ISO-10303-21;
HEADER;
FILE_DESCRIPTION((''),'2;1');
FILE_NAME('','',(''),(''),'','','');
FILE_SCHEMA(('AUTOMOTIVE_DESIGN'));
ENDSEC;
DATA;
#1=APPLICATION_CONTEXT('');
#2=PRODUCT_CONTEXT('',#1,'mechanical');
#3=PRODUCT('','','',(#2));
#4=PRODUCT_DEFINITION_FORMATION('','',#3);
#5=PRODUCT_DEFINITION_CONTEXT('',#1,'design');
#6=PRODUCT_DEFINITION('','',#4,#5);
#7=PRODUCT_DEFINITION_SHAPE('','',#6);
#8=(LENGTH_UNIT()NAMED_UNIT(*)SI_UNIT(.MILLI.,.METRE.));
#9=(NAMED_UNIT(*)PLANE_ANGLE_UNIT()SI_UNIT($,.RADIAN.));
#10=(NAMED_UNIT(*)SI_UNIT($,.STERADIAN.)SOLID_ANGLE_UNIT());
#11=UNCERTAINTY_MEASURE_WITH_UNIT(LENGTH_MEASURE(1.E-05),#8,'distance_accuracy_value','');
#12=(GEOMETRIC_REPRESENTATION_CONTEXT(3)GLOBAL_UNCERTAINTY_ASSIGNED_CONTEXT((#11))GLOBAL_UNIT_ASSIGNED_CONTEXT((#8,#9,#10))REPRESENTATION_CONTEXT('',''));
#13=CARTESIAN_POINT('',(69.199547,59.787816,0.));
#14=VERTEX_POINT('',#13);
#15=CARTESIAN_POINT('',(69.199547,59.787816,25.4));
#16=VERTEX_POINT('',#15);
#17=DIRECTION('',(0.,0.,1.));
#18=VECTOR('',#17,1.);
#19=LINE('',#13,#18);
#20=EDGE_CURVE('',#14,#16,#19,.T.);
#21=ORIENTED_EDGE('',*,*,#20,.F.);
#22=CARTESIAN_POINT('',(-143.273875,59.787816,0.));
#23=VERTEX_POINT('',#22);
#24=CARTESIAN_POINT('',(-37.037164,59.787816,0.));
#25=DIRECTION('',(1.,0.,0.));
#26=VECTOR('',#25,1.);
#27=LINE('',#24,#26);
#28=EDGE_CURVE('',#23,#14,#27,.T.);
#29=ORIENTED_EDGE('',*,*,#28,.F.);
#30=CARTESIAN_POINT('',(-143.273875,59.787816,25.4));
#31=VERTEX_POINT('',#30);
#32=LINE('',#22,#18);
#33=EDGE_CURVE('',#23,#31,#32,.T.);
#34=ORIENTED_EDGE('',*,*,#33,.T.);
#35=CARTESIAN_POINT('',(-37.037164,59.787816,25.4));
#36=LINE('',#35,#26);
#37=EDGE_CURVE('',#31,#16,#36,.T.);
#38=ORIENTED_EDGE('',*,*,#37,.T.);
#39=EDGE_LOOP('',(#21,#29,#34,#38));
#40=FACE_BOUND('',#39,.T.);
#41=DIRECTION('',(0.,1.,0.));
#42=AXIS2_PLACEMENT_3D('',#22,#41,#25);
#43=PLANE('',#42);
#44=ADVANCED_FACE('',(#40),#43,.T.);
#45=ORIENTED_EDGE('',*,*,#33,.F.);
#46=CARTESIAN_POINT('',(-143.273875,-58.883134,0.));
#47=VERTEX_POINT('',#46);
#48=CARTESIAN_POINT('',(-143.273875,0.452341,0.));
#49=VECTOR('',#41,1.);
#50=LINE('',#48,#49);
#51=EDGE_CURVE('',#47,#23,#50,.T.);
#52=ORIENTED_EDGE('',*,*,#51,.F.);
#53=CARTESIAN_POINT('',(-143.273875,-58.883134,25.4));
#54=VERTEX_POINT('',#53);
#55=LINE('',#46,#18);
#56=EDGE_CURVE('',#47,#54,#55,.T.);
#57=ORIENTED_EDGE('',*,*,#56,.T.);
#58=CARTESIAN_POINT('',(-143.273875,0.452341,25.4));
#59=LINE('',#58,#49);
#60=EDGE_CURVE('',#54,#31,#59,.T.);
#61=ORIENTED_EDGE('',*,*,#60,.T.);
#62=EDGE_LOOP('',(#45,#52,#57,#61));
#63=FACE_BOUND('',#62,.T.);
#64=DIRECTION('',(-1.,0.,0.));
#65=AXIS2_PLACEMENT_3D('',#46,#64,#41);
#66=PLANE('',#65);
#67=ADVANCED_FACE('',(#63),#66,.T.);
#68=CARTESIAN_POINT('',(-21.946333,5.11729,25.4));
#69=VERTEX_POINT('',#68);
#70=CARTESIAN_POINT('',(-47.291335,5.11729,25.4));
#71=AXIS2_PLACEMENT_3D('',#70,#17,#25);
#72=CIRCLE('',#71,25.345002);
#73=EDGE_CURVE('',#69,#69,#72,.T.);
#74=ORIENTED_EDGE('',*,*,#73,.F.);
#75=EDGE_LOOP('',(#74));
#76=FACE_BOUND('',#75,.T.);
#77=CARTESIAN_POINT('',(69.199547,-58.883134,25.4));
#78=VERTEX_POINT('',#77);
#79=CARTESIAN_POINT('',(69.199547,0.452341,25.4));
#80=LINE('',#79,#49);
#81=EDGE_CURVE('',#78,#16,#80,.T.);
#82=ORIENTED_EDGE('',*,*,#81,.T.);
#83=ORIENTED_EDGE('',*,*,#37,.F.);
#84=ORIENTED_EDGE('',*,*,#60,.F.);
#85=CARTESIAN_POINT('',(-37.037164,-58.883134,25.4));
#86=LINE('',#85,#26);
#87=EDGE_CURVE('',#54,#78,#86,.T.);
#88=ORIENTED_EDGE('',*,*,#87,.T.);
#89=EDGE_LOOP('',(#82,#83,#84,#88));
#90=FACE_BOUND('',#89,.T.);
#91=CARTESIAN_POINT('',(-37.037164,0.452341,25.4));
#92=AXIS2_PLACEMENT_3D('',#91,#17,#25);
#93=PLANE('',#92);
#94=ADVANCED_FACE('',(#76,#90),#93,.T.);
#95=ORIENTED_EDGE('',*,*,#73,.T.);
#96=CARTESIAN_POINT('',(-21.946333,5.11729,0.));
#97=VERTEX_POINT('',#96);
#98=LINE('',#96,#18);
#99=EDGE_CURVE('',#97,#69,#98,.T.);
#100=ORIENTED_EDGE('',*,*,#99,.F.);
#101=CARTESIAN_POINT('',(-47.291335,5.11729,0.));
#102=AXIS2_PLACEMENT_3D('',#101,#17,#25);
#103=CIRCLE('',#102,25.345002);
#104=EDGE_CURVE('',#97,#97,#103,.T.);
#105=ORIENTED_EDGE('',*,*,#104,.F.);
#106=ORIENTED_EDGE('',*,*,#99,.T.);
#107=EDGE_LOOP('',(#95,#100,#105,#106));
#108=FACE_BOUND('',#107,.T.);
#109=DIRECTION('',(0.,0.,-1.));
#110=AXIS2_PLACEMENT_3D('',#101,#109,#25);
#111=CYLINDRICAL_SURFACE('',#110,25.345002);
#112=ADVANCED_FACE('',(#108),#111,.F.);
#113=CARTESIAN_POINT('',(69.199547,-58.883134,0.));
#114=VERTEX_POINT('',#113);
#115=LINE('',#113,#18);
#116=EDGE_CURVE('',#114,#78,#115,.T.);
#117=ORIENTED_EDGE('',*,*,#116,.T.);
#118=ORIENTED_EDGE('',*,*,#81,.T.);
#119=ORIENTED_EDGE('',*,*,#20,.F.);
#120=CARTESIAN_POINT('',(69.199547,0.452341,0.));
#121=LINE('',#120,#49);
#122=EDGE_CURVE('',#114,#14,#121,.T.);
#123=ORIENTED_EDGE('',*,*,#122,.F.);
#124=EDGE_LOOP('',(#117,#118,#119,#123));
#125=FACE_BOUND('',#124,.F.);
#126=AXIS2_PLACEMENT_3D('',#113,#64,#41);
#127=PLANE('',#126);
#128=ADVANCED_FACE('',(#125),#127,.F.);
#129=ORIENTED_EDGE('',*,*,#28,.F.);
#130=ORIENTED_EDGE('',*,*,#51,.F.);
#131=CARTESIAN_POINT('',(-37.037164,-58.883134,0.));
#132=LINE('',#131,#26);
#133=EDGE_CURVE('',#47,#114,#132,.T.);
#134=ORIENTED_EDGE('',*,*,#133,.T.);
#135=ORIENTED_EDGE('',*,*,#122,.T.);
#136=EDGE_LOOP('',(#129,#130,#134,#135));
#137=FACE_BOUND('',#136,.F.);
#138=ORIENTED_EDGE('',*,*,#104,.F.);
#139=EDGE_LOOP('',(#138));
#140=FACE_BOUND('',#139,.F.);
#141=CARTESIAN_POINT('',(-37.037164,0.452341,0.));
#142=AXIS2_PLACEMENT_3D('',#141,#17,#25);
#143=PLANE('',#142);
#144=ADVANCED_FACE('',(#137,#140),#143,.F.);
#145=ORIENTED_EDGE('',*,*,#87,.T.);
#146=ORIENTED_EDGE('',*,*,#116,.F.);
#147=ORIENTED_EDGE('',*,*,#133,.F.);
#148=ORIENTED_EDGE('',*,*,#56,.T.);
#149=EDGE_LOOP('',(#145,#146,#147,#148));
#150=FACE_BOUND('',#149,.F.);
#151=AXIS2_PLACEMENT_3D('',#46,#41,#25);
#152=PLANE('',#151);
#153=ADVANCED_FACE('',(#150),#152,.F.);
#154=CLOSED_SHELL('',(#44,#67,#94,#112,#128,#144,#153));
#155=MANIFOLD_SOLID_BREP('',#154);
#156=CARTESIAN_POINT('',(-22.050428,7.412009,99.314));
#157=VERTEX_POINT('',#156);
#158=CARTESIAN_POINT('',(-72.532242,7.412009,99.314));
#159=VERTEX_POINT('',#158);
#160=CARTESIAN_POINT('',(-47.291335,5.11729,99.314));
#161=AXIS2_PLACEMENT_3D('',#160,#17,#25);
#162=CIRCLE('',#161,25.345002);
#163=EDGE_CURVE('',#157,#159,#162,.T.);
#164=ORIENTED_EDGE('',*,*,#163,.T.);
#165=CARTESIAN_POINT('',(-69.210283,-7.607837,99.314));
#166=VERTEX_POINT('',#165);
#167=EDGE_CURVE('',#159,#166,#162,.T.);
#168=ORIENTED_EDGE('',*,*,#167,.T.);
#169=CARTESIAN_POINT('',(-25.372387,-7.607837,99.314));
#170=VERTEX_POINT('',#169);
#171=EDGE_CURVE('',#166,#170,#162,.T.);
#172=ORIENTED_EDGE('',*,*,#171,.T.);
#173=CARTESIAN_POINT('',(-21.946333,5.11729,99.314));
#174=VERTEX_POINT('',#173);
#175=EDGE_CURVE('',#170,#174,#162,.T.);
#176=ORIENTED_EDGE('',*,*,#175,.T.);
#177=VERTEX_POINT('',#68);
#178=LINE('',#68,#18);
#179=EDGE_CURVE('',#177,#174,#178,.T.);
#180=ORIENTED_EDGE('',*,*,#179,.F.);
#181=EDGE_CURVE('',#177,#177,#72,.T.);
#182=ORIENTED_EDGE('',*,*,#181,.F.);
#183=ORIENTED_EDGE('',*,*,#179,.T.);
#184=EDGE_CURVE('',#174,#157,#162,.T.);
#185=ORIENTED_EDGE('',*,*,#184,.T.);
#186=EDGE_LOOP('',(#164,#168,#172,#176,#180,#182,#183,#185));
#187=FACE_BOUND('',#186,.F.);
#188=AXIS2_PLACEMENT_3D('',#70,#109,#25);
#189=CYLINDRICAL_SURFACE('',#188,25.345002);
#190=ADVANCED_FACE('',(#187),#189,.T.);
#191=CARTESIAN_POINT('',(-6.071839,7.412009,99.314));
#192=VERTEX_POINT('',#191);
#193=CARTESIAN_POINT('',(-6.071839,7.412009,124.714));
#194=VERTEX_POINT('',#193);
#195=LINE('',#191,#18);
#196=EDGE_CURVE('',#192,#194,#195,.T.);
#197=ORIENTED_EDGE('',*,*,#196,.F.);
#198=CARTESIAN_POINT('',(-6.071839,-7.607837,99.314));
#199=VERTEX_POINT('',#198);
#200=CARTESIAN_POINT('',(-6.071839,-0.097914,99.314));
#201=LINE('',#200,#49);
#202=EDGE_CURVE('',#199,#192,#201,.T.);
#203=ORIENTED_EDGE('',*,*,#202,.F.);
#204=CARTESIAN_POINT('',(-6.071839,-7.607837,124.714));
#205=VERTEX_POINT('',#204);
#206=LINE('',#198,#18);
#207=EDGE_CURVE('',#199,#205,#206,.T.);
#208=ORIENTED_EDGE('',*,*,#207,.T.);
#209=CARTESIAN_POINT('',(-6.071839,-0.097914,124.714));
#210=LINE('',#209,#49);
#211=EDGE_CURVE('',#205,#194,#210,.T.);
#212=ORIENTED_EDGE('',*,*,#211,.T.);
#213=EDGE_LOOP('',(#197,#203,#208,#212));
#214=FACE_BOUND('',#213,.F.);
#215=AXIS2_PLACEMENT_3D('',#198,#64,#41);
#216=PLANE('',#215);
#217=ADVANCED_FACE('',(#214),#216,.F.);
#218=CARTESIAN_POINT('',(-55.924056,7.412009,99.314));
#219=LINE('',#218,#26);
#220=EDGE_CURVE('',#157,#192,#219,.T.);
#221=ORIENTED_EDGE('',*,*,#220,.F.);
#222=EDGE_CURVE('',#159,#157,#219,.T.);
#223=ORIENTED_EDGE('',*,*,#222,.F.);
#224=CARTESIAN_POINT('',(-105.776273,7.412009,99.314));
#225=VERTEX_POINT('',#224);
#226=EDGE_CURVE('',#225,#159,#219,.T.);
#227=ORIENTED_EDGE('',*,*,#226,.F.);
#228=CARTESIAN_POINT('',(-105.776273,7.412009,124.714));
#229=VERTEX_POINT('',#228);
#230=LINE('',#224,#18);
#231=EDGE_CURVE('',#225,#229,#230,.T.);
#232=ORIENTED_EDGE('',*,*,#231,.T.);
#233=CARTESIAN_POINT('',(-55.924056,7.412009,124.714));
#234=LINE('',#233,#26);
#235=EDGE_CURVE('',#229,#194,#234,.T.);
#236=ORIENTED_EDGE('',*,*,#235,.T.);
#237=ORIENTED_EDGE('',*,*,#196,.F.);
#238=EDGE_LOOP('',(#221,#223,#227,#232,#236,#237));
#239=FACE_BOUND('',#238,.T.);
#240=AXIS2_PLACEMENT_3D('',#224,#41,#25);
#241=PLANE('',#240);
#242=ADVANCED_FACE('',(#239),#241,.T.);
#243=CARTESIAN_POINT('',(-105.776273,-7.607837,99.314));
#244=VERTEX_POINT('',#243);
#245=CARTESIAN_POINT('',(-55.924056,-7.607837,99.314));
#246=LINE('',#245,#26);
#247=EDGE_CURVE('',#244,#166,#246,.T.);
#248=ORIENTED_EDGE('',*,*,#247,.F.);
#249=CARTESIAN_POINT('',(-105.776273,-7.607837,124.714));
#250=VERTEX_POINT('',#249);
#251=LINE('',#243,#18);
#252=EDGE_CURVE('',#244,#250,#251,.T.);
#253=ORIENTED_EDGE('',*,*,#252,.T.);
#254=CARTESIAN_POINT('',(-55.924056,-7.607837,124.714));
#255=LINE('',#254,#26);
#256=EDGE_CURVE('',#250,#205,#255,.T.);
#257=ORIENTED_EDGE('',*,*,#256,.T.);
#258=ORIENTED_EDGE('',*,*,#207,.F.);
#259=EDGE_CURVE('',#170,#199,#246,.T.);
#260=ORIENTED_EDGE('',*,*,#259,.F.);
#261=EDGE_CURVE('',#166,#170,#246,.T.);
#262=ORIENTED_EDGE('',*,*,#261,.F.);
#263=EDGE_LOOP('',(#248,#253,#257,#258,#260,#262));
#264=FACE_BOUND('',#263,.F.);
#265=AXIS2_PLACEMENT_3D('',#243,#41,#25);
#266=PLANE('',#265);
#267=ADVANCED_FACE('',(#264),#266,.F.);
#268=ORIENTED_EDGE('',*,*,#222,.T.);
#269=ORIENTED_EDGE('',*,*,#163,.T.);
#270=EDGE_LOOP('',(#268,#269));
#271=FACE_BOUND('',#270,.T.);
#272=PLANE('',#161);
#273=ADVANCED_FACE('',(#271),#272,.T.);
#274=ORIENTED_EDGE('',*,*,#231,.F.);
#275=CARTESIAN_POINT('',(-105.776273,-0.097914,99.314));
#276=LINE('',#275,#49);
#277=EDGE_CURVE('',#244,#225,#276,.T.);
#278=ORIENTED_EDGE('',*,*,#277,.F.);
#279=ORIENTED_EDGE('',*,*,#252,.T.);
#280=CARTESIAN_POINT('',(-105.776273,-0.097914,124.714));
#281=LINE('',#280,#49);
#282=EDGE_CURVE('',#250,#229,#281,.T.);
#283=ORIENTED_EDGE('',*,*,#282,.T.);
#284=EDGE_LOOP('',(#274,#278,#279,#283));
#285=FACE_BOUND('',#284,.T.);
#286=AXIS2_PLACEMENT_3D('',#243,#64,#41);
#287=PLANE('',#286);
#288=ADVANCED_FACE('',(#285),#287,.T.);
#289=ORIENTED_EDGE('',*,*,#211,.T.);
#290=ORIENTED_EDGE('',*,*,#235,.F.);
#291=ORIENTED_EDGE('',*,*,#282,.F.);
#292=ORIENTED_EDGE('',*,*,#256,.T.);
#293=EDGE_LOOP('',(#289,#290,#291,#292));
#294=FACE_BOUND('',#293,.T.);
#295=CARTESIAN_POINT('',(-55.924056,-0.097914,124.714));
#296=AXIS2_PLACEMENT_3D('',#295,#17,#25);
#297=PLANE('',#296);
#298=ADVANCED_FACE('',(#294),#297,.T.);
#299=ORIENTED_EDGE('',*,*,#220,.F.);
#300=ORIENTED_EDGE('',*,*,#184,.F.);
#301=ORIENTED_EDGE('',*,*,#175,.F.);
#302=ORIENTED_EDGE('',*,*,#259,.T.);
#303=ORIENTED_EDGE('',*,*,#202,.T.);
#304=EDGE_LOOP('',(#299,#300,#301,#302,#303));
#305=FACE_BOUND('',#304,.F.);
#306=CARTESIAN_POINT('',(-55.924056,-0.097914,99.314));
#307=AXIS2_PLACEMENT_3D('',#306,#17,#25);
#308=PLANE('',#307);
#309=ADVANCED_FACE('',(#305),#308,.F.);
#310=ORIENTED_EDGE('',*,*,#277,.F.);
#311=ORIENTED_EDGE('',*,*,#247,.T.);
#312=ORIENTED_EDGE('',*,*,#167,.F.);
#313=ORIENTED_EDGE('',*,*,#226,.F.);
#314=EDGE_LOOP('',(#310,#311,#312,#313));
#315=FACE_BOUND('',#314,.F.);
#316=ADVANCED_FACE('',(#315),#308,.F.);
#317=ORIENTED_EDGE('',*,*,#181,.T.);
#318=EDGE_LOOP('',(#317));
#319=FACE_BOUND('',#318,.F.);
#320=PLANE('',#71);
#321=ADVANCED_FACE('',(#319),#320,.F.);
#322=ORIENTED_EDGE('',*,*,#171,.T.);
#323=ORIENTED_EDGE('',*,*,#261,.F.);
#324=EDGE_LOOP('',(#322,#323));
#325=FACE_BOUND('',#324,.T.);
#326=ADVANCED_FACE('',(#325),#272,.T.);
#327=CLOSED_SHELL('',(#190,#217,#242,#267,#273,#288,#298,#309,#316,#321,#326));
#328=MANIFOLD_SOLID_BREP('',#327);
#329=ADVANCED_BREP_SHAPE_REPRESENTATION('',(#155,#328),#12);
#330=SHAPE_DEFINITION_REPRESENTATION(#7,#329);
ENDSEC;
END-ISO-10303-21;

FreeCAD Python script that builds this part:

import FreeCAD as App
import Part
import Sketcher
from FreeCAD import Vector
Q = App.Units.Quantity

doc = App.newDocument("Part")
body = doc.addObject("PartDesign::Body", "Body")

sketch1 = body.newObject("Sketcher::SketchObject", "Sketch")
sketch1.AttachmentSupport = (doc.getObject("XY_Plane"), [""])
sketch1.MapMode = "FlatFace"
sketch1.addGeometry(Part.LineSegment(Vector(-143.273875, 59.787816, 0), Vector(-143.273875, -58.883134, 0)), False)
sketch1.addGeometry(Part.LineSegment(Vector(-143.273875, -58.883134, 0), Vector(69.199547, -58.883134, 0)), False)
sketch1.addGeometry(Part.LineSegment(Vector(69.199547, -58.883134, 0), Vector(69.199547, 59.787816, 0)), False)
sketch1.addGeometry(Part.LineSegment(Vector(69.199547, 59.787816, 0), Vector(-143.273875, 59.787816, 0)), False)
sketch1.addGeometry(Part.Circle(Vector(-47.291335, 5.11729, 0), Vector(0, 0, 1), 25.345002), False)
sketch1.addConstraint(Sketcher.Constraint("Coincident", 0, 2, 1, 1))
sketch1.addConstraint(Sketcher.Constraint("Coincident", 1, 2, 2, 1))
sketch1.addConstraint(Sketcher.Constraint("Coincident", 2, 2, 3, 1))
sketch1.addConstraint(Sketcher.Constraint("Coincident", 3, 2, 0, 1))
sketch1.addConstraint(Sketcher.Constraint("Vertical", 0))
sketch1.addConstraint(Sketcher.Constraint("Horizontal", 1))
sketch1.addConstraint(Sketcher.Constraint("Vertical", 2))
sketch1.addConstraint(Sketcher.Constraint("Horizontal", 3))
sketch1.addConstraint(Sketcher.Constraint("Diameter", 4, 50.690004))
sketch1.addConstraint(Sketcher.Constraint("DistanceX", 1, 1, 1, 2, 212.473422))
sketch1.addConstraint(Sketcher.Constraint("DistanceY", 0, 2, 0, 1, 118.670951))
sketch1.addConstraint(Sketcher.Constraint("DistanceY", -1, 1, 4, 3, 5.11729))
sketch1.addConstraint(Sketcher.Constraint("DistanceX", 0, 2, 4, 3, 95.98254))
sketch1.addConstraint(Sketcher.Constraint("DistanceX", 4, 3, -1, 1, 47.291335))
sketch1.addConstraint(Sketcher.Constraint("DistanceY", 0, 2, -1, 1, 58.883134))
pad1 = body.newObject("PartDesign::Pad", "Pad")
pad1.Profile = sketch1
pad1.Length = Q("1 in")
body2 = doc.addObject("PartDesign::Body", "Body001")

sketch2 = body2.newObject("Sketcher::SketchObject", "Sketch001")
sketch2.AttachmentSupport = (doc.getObject("XY_Plane001"), [""])
sketch2.MapMode = "FlatFace"
sketch2.AttachmentOffset = App.Placement(Vector(0, 0, 1 * 25.4), App.Rotation())
sketch2.addGeometry(Part.Circle(Vector(-47.291335, 5.11729, 0), Vector(0, 0, 1), 25.345002), False)
sketch2.addConstraint(Sketcher.Constraint("Diameter", 0, 50.690004))
sketch2.addConstraint(Sketcher.Constraint("DistanceY", -1, 1, 0, 3, 5.11729))
sketch2.addConstraint(Sketcher.Constraint("DistanceX", 0, 3, -1, 1, 47.291335))
pad2 = body2.newObject("PartDesign::Pad", "Pad001")
pad2.Profile = sketch2
pad2.Length = Q("2.91 in")

sketch3 = body2.newObject("Sketcher::SketchObject", "Sketch002")
sketch3.AttachmentSupport = (doc.getObject("XY_Plane001"), [""])
sketch3.MapMode = "FlatFace"
sketch3.AttachmentOffset = App.Placement(Vector(0, 0, 3.91 * 25.4), App.Rotation())
sketch3.addGeometry(Part.LineSegment(Vector(-105.776273, 7.412009, 0), Vector(-105.776273, -7.607837, 0)), False)
sketch3.addGeometry(Part.LineSegment(Vector(-105.776273, -7.607837, 0), Vector(-6.071839, -7.607837, 0)), False)
sketch3.addGeometry(Part.LineSegment(Vector(-6.071839, -7.607837, 0), Vector(-6.071839, 7.412009, 0)), False)
sketch3.addGeometry(Part.LineSegment(Vector(-6.071839, 7.412009, 0), Vector(-105.776273, 7.412009, 0)), False)
sketch3.addConstraint(Sketcher.Constraint("Coincident", 0, 2, 1, 1))
sketch3.addConstraint(Sketcher.Constraint("Coincident", 1, 2, 2, 1))
sketch3.addConstraint(Sketcher.Constraint("Coincident", 2, 2, 3, 1))
sketch3.addConstraint(Sketcher.Constraint("Coincident", 3, 2, 0, 1))
sketch3.addConstraint(Sketcher.Constraint("Vertical", 0))
sketch3.addConstraint(Sketcher.Constraint("Horizontal", 1))
sketch3.addConstraint(Sketcher.Constraint("Vertical", 2))
sketch3.addConstraint(Sketcher.Constraint("Horizontal", 3))
sketch3.addConstraint(Sketcher.Constraint("DistanceX", 1, 1, 1, 2, 99.704434))
sketch3.addConstraint(Sketcher.Constraint("DistanceY", 0, 2, 0, 1, 15.019846))
sketch3.addConstraint(Sketcher.Constraint("DistanceX", 1, 2, -1, 1, 6.071839))
sketch3.addConstraint(Sketcher.Constraint("DistanceY", -1, 1, 2, 2, 7.412009))
pad3 = body2.newObject("PartDesign::Pad", "Pad002")
pad3.Profile = sketch3
pad3.Length = Q("1 in")

doc.recompute()
